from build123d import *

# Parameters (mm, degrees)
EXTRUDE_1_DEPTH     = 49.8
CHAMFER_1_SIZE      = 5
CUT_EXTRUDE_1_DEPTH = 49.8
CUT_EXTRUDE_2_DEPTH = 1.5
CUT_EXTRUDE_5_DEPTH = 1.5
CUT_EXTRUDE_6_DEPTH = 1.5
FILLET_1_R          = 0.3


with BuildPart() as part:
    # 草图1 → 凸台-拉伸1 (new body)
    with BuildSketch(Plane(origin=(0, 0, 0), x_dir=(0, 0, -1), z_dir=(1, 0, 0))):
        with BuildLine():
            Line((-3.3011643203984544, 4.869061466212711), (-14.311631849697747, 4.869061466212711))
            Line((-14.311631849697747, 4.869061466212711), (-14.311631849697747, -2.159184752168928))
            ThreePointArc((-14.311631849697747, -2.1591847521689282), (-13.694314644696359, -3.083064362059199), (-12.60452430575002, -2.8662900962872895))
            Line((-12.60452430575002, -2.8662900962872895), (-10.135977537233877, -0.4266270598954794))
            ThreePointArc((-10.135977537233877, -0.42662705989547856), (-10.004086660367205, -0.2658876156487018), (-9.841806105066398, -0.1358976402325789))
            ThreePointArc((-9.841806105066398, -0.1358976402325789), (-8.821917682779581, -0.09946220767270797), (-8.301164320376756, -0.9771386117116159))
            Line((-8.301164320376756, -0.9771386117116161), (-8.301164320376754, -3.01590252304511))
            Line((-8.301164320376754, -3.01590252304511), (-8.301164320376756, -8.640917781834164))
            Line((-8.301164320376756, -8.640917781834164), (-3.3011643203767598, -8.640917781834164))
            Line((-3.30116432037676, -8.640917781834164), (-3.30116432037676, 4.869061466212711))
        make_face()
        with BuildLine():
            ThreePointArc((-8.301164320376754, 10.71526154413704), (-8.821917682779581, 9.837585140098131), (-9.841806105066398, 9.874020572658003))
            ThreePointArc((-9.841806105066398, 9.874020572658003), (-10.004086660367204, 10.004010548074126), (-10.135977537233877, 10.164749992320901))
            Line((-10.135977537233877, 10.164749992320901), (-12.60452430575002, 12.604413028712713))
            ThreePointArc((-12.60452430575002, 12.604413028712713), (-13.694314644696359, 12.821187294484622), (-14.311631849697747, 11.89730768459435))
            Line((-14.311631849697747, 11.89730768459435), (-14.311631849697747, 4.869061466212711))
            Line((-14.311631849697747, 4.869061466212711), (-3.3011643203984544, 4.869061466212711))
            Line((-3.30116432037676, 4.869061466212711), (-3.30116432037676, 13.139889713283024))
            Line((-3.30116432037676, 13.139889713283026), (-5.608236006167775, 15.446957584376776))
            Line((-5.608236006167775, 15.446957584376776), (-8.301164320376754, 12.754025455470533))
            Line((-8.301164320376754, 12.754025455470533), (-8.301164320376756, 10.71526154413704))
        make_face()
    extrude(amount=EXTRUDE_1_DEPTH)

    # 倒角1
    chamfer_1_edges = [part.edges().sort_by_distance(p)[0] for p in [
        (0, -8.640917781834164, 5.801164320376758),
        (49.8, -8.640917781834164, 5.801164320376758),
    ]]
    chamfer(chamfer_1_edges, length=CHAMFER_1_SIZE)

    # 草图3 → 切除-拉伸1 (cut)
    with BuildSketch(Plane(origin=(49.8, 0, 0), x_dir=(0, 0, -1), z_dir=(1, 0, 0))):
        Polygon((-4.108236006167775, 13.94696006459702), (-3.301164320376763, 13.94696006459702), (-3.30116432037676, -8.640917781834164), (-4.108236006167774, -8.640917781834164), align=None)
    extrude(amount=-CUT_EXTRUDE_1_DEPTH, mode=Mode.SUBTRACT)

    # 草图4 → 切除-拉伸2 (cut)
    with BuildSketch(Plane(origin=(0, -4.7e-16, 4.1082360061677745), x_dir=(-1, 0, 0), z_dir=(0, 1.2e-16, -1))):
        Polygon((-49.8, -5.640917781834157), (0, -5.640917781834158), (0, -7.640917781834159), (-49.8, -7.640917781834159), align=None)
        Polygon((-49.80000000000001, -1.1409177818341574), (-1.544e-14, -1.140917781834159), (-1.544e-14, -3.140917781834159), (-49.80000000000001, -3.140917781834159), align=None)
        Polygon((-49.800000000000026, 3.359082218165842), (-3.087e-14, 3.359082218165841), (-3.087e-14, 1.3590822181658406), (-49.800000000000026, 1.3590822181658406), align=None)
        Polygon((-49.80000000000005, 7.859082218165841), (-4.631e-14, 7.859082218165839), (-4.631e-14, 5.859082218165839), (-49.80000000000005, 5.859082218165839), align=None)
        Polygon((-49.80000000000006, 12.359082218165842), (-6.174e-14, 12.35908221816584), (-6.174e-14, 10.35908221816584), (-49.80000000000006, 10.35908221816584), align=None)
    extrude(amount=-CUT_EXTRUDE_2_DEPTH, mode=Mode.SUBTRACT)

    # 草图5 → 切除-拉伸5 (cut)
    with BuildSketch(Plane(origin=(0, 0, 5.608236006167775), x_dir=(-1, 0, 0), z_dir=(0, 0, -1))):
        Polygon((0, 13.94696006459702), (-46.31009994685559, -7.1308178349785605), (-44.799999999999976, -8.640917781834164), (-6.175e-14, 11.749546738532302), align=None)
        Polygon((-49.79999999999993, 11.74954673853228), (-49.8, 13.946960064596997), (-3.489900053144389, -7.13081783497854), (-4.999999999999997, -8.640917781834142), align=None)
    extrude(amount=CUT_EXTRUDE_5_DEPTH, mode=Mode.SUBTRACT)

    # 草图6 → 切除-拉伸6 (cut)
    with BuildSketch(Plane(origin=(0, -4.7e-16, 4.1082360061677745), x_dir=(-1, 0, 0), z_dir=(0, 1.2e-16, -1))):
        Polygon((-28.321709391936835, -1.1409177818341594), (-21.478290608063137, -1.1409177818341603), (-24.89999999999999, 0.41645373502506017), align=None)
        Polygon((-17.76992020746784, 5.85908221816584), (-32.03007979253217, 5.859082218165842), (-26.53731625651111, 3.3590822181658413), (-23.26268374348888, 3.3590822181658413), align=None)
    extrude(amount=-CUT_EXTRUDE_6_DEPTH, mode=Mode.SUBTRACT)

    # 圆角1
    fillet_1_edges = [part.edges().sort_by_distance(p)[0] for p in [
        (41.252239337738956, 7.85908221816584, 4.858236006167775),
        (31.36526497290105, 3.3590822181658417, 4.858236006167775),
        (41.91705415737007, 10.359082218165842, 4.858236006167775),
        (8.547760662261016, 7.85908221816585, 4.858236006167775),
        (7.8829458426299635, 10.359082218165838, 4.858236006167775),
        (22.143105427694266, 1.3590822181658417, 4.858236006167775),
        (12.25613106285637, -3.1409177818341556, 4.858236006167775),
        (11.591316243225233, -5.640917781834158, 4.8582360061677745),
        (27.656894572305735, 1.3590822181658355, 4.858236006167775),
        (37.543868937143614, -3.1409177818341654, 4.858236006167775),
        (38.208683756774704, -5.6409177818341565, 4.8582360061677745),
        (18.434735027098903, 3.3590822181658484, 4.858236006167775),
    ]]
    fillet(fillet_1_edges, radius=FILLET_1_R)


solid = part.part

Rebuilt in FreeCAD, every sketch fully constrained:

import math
import FreeCAD as App
import Part
import Sketcher

V = App.Vector
Q = App.Units.Quantity


def edges_at(feature, points):
    """Names of the edges that pass closest to the given points."""
    edges = feature.Shape.Edges
    near = lambda p: min(range(len(edges)), key=lambda i: edges[i].distToShape(Part.Vertex(*p))[0])
    return sorted({f"Edge{near(p) + 1}" for p in points})

doc = App.newDocument("Part")
body = doc.addObject("PartDesign::Body", "Body")

sketch1 = body.newObject("Sketcher::SketchObject", "Sketch")
sketch1.AttachmentSupport = (doc.getObject("YZ_Plane"), [""])
sketch1.MapMode = "FlatFace"
sketch1.addGeometry(Part.ArcOfCircle(Part.Circle(V(-2.159185, 13.311632, 0), V(0, 0, 1), 1), math.radians(90), math.radians(225.0001)), False)
sketch1.addGeometry(Part.LineSegment(V(-2.86629, 12.604524, 0), V(-0.426627, 10.135978, 0)), False)
sketch1.addGeometry(Part.ArcOfCircle(Part.Circle(V(-0.977139, 9.301158, 0), V(0, 0, 1), 0.999993), math.radians(-90), math.radians(56.597639)), False)
sketch1.addGeometry(Part.LineSegment(V(-0.977139, 8.301164, 0), V(-8.640918, 8.301164, 0)), False)
sketch1.addGeometry(Part.LineSegment(V(-8.640918, 8.301164, 0), V(-8.640918, 3.301164, 0)), False)
sketch1.addGeometry(Part.LineSegment(V(-8.640918, 3.301164, 0), V(13.13989, 3.301164, 0)), False)
sketch1.addGeometry(Part.LineSegment(V(13.13989, 3.301164, 0), V(15.446958, 5.608236, 0)), False)
sketch1.addGeometry(Part.LineSegment(V(15.446958, 5.608236, 0), V(12.754025, 8.301164, 0)), False)
sketch1.addGeometry(Part.LineSegment(V(12.754025, 8.301164, 0), V(10.715262, 8.301164, 0)), False)
sketch1.addGeometry(Part.ArcOfCircle(Part.Circle(V(10.715262, 9.301158, 0), V(0, 0, 1), 0.999993), math.radians(123.402361), math.radians(270)), False)
sketch1.addGeometry(Part.LineSegment(V(10.16475, 10.135978, 0), V(12.604413, 12.604524, 0)), False)
sketch1.addGeometry(Part.ArcOfCircle(Part.Circle(V(11.897308, 13.311632, 0), V(0, 0, 1), 1), math.radians(-45.0001), math.radians(90)), False)
sketch1.addGeometry(Part.LineSegment(V(11.897308, 14.311632, 0), V(-2.159185, 14.311632, 0)), False)
sketch1.addConstraint(Sketcher.Constraint("Coincident", 0, 2, 1, 1))
sketch1.addConstraint(Sketcher.Constraint("Coincident", 1, 2, 2, 2))
sketch1.addConstraint(Sketcher.Constraint("Tangent", 2, 1, 3, 1))
sketch1.addConstraint(Sketcher.Constraint("Coincident", 3, 2, 4, 1))
sketch1.addConstraint(Sketcher.Constraint("Coincident", 4, 2, 5, 1))
sketch1.addConstraint(Sketcher.Constraint("Coincident", 5, 2, 6, 1))
sketch1.addConstraint(Sketcher.Constraint("Coincident", 6, 2, 7, 1))
sketch1.addConstraint(Sketcher.Constraint("Coincident", 7, 2, 8, 1))
sketch1.addConstraint(Sketcher.Constraint("Tangent", 8, 2, 9, 2))
sketch1.addConstraint(Sketcher.Constraint("Coincident", 9, 1, 10, 1))
sketch1.addConstraint(Sketcher.Constraint("Coincident", 10, 2, 11, 1))
sketch1.addConstraint(Sketcher.Constraint("Tangent", 11, 2, 12, 1))
sketch1.addConstraint(Sketcher.Constraint("Tangent", 12, 2, 0, 1))
sketch1.addConstraint(Sketcher.Constraint("Horizontal", 3))
sketch1.addConstraint(Sketcher.Constraint("Vertical", 4))
sketch1.addConstraint(Sketcher.Constraint("Horizontal", 5))
sketch1.addConstraint(Sketcher.Constraint("Horizontal", 8))
sketch1.addConstraint(Sketcher.Constraint("Horizontal", 12))
sketch1.addConstraint(Sketcher.Constraint("Equal", 2, 9))
sketch1.addConstraint(Sketcher.Constraint("Equal", 0, 11))
sketch1.addConstraint(Sketcher.Constraint("Perpendicular", 6, 7))
sketch1.addConstraint(Sketcher.Constraint("Horizontal", 2, 3, 9, 3))
sketch1.addConstraint(Sketcher.Constraint("Horizontal", 1, 2, 9, 1))
sketch1.addConstraint(Sketcher.Constraint("Horizontal", 0, 2, 10, 2))
sketch1.addConstraint(Sketcher.Constraint("Equal", 1, 10))
sketch1.addConstraint(Sketcher.Constraint("Radius", 0, Q("1 mm")))
sketch1.addConstraint(Sketcher.Constraint("DistanceY", 4, 2, 4, 1, Q("5 mm")))
sketch1.addConstraint(Sketcher.Constraint("Radius", 2, Q("0.999993 mm")))
sketch1.addConstraint(Sketcher.Constraint("DistanceX", 3, 2, 3, 1, Q("7.663779 mm")))
sketch1.addConstraint(Sketcher.Constraint("DistanceX", 2, 3, 9, 3, Q("11.6924 mm")))
sketch1.addConstraint(Sketcher.Constraint("Distance", 1, Q("3.470689 mm")))
sketch1.addConstraint(Sketcher.Constraint("Distance", 6, Q("3.262689 mm")))
sketch1.addConstraint(Sketcher.Constraint("Distance", 7, Q("3.808378 mm")))
sketch1.addConstraint(Sketcher.Constraint("DistanceX", 5, 1, 5, 2, Q("21.780807 mm")))
sketch1.addConstraint(Sketcher.Constraint("DistanceX", 12, 2, 12, 1, Q("14.056492 mm")))
sketch1.addConstraint(Sketcher.Constraint("DistanceX", 2, 3, -1, 1, Q("0.977139 mm")))
sketch1.addConstraint(Sketcher.Constraint("DistanceX", 0, 2, -1, 1, Q("2.86629 mm")))
sketch1.addConstraint(Sketcher.Constraint("DistanceX", -1, 1, 9, 1, Q("10.16475 mm")))
sketch1.addConstraint(Sketcher.Constraint("DistanceY", -1, 1, 11, 2, Q("14.311632 mm")))
pad1 = body.newObject("PartDesign::Pad", "Pad")
pad1.Profile = sketch1
pad1.Length = 49.8
doc.recompute()

chamfer = body.newObject("PartDesign::Chamfer", "Chamfer")
chamfer.Base = (pad1, edges_at(pad1, [(0, -8.641, 5.801), (49.8, -8.641, 5.801)]))
chamfer.Size = 5

sketch2 = body.newObject("Sketcher::SketchObject", "Sketch001")
sketch2.AttachmentSupport = (doc.getObject("YZ_Plane"), [""])
sketch2.MapMode = "FlatFace"
sketch2.AttachmentOffset = App.Placement(V(0, 0, 49.8), App.Rotation())
sketch2.addGeometry(Part.LineSegment(V(13.94696, 3.301164, 0), V(13.94696, 4.108236, 0)), False)
sketch2.addGeometry(Part.LineSegment(V(13.94696, 4.108236, 0), V(-8.640918, 4.108236, 0)), False)
sketch2.addGeometry(Part.LineSegment(V(-8.640918, 4.108236, 0), V(-8.640918, 3.301164, 0)), False)
sketch2.addGeometry(Part.LineSegment(V(-8.640918, 3.301164, 0), V(13.94696, 3.301164, 0)), False)
sketch2.addConstraint(Sketcher.Constraint("Coincident", 0, 2, 1, 1))
sketch2.addConstraint(Sketcher.Constraint("Coincident", 1, 2, 2, 1))
sketch2.addConstraint(Sketcher.Constraint("Coincident", 2, 2, 3, 1))
sketch2.addConstraint(Sketcher.Constraint("Coincident", 3, 2, 0, 1))
sketch2.addConstraint(Sketcher.Constraint("Vertical", 0))
sketch2.addConstraint(Sketcher.Constraint("Horizontal", 1))
sketch2.addConstraint(Sketcher.Constraint("Vertical", 2))
sketch2.addConstraint(Sketcher.Constraint("Horizontal", 3))
sketch2.addConstraint(Sketcher.Constraint("DistanceY", 0, 1, 0, 2, Q("0.807072 mm")))
sketch2.addConstraint(Sketcher.Constraint("DistanceX", 1, 2, 1, 1, Q("22.587878 mm")))
sketch2.addConstraint(Sketcher.Constraint("DistanceX", -1, 1, 0, 2, Q("13.94696 mm")))
sketch2.addConstraint(Sketcher.Constraint("DistanceY", -1, 1, 0, 2, Q("4.108236 mm")))
pocket1 = body.newObject("PartDesign::Pocket", "Pocket")
pocket1.Profile = sketch2
pocket1.Length = 49.8

sketch3 = body.newObject("Sketcher::SketchObject", "Sketch002")
sketch3.AttachmentSupport = (doc.getObject("XY_Plane"), [""])
sketch3.MapMode = "FlatFace"
sketch3.AttachmentOffset = App.Placement(V(0, 0, 4.108236), App.Rotation())
sketch3.addGeometry(Part.LineSegment(V(0, -5.640918, 0), V(49.8, -5.640918, 0)), False)
sketch3.addGeometry(Part.LineSegment(V(49.8, -5.640918, 0), V(49.8, -7.640918, 0)), False)
sketch3.addGeometry(Part.LineSegment(V(49.8, -7.640918, 0), V(0, -7.640918, 0)), False)
sketch3.addGeometry(Part.LineSegment(V(0, -7.640918, 0), V(0, -5.640918, 0)), False)
sketch3.addGeometry(Part.LineSegment(V(0, -1.140918, 0), V(49.8, -1.140918, 0)), False)
sketch3.addGeometry(Part.LineSegment(V(49.8, -1.140918, 0), V(49.8, -3.140918, 0)), False)
sketch3.addGeometry(Part.LineSegment(V(49.8, -3.140918, 0), V(0, -3.140918, 0)), False)
sketch3.addGeometry(Part.LineSegment(V(0, -3.140918, 0), V(0, -1.140918, 0)), False)
sketch3.addGeometry(Part.LineSegment(V(0, 3.359082, 0), V(49.8, 3.359082, 0)), False)
sketch3.addGeometry(Part.LineSegment(V(49.8, 3.359082, 0), V(49.8, 1.359082, 0)), False)
sketch3.addGeometry(Part.LineSegment(V(49.8, 1.359082, 0), V(0, 1.359082, 0)), False)
sketch3.addGeometry(Part.LineSegment(V(0, 1.359082, 0), V(0, 3.359082, 0)), False)
sketch3.addGeometry(Part.LineSegment(V(0, 7.859082, 0), V(49.8, 7.859082, 0)), False)
sketch3.addGeometry(Part.LineSegment(V(49.8, 7.859082, 0), V(49.8, 5.859082, 0)), False)
sketch3.addGeometry(Part.LineSegment(V(49.8, 5.859082, 0), V(0, 5.859082, 0)), False)
sketch3.addGeometry(Part.LineSegment(V(0, 5.859082, 0), V(0, 7.859082, 0)), False)
sketch3.addGeometry(Part.LineSegment(V(0, 12.359082, 0), V(49.8, 12.359082, 0)), False)
sketch3.addGeometry(Part.LineSegment(V(49.8, 12.359082, 0), V(49.8, 10.359082, 0)), False)
sketch3.addGeometry(Part.LineSegment(V(49.8, 10.359082, 0), V(0, 10.359082, 0)), False)
sketch3.addGeometry(Part.LineSegment(V(0, 10.359082, 0), V(0, 12.359082, 0)), False)
sketch3.addConstraint(Sketcher.Constraint("Coincident", 0, 2, 1, 1))
sketch3.addConstraint(Sketcher.Constraint("Coincident", 1, 2, 2, 1))
sketch3.addConstraint(Sketcher.Constraint("Coincident", 2, 2, 3, 1))
sketch3.addConstraint(Sketcher.Constraint("Coincident", 3, 2, 0, 1))
sketch3.addConstraint(Sketcher.Constraint("Coincident", 4, 2, 5, 1))
sketch3.addConstraint(Sketcher.Constraint("Coincident", 5, 2, 6, 1))
sketch3.addConstraint(Sketcher.Constraint("Coincident", 6, 2, 7, 1))
sketch3.addConstraint(Sketcher.Constraint("Coincident", 7, 2, 4, 1))
sketch3.addConstraint(Sketcher.Constraint("Coincident", 8, 2, 9, 1))
sketch3.addConstraint(Sketcher.Constraint("Coincident", 9, 2, 10, 1))
sketch3.addConstraint(Sketcher.Constraint("Coincident", 10, 2, 11, 1))
sketch3.addConstraint(Sketcher.Constraint("Coincident", 11, 2, 8, 1))
sketch3.addConstraint(Sketcher.Constraint("Coincident", 12, 2, 13, 1))
sketch3.addConstraint(Sketcher.Constraint("Coincident", 13, 2, 14, 1))
sketch3.addConstraint(Sketcher.Constraint("Coincident", 14, 2, 15, 1))
sketch3.addConstraint(Sketcher.Constraint("Coincident", 15, 2, 12, 1))
sketch3.addConstraint(Sketcher.Constraint("Coincident", 16, 2, 17, 1))
sketch3.addConstraint(Sketcher.Constraint("Coincident", 17, 2, 18, 1))
sketch3.addConstraint(Sketcher.Constraint("Coincident", 18, 2, 19, 1))
sketch3.addConstraint(Sketcher.Constraint("Coincident", 19, 2, 16, 1))
sketch3.addConstraint(Sketcher.Constraint("Horizontal", 0))
sketch3.addConstraint(Sketcher.Constraint("Vertical", 1))
sketch3.addConstraint(Sketcher.Constraint("Horizontal", 2))
sketch3.addConstraint(Sketcher.Constraint("Vertical", 3))
sketch3.addConstraint(Sketcher.Constraint("Horizontal", 4))
sketch3.addConstraint(Sketcher.Constraint("Vertical", 5))
sketch3.addConstraint(Sketcher.Constraint("Horizontal", 6))
sketch3.addConstraint(Sketcher.Constraint("Vertical", 7))
sketch3.addConstraint(Sketcher.Constraint("Horizontal", 8))
sketch3.addConstraint(Sketcher.Constraint("Vertical", 9))
sketch3.addConstraint(Sketcher.Constraint("Horizontal", 10))
sketch3.addConstraint(Sketcher.Constraint("Vertical", 11))
sketch3.addConstraint(Sketcher.Constraint("Horizontal", 12))
sketch3.addConstraint(Sketcher.Constraint("Vertical", 13))
sketch3.addConstraint(Sketcher.Constraint("Horizontal", 14))
sketch3.addConstraint(Sketcher.Constraint("Vertical", 15))
sketch3.addConstraint(Sketcher.Constraint("Horizontal", 16))
sketch3.addConstraint(Sketcher.Constraint("Vertical", 17))
sketch3.addConstraint(Sketcher.Constraint("Horizontal", 18))
sketch3.addConstraint(Sketcher.Constraint("Vertical", 19))
sketch3.addConstraint(Sketcher.Constraint("PointOnObject", 2, 2, -2))
sketch3.addConstraint(Sketcher.Constraint("PointOnObject", 6, 2, -2))
sketch3.addConstraint(Sketcher.Constraint("PointOnObject", 10, 2, -2))
sketch3.addConstraint(Sketcher.Constraint("PointOnObject", 14, 2, -2))
sketch3.addConstraint(Sketcher.Constraint("PointOnObject", 18, 2, -2))
sketch3.addConstraint(Sketcher.Constraint("Vertical", 1, 2, 4, 2))
sketch3.addConstraint(Sketcher.Constraint("Vertical", 5, 2, 8, 2))
sketch3.addConstraint(Sketcher.Constraint("Vertical", 9, 2, 12, 2))
sketch3.addConstraint(Sketcher.Constraint("Vertical", 13, 2, 16, 2))
sketch3.addConstraint(Sketcher.Constraint("Equal", 3, 5))
sketch3.addConstraint(Sketcher.Constraint("Equal", 7, 9))
sketch3.addConstraint(Sketcher.Constraint("Equal", 11, 13))
sketch3.addConstraint(Sketcher.Constraint("Equal", 15, 17))
sketch3.addConstraint(Sketcher.Constraint("DistanceY", 1, 2, 1, 1, Q("2 mm")))
sketch3.addConstraint(Sketcher.Constraint("DistanceX", 0, 1, 0, 2, Q("49.8 mm")))
sketch3.addConstraint(Sketcher.Constraint("DistanceY", 0, 2, 8, 2, Q("9 mm")))
sketch3.addConstraint(Sketcher.Constraint("DistanceY", 4, 2, 12, 2, Q("9 mm")))
sketch3.addConstraint(Sketcher.Constraint("DistanceY", 8, 2, 16, 2, Q("9 mm")))
sketch3.addConstraint(Sketcher.Constraint("DistanceY", 0, 2, 4, 2, Q("4.5 mm")))
sketch3.addConstraint(Sketcher.Constraint("DistanceY", 0, 2, -1, 1, Q("5.640918 mm")))
pocket2 = body.newObject("PartDesign::Pocket", "Pocket001")
pocket2.Profile = sketch3
pocket2.Length = 1.5
pocket2.Reversed = True

sketch4 = body.newObject("Sketcher::SketchObject", "Sketch003")
sketch4.AttachmentSupport = (doc.getObject("XY_Plane"), [""])
sketch4.MapMode = "FlatFace"
sketch4.AttachmentOffset = App.Placement(V(0, 0, 5.608236), App.Rotation())
sketch4.addGeometry(Part.LineSegment(V(0, 11.749547, 0), V(0, 13.94696, 0)), False)
sketch4.addGeometry(Part.LineSegment(V(0, 13.94696, 0), V(24.9, 2.613867, 0)), False)
sketch4.addGeometry(Part.LineSegment(V(24.9, 2.613867, 0), V(49.8, 13.94696, 0)), False)
sketch4.addGeometry(Part.LineSegment(V(49.8, 13.94696, 0), V(49.8, 11.749547, 0)), False)
sketch4.addGeometry(Part.LineSegment(V(49.8, 11.749547, 0), V(27.313974, 1.51516, 0)), False)
sketch4.addGeometry(Part.LineSegment(V(27.313974, 1.51516, 0), V(46.3101, -7.130818, 0)), False)
sketch4.addGeometry(Part.LineSegment(V(46.3101, -7.130818, 0), V(44.8, -8.640918, 0)), False)
sketch4.addGeometry(Part.LineSegment(V(44.8, -8.640918, 0), V(24.9, 0.416454, 0)), False)
sketch4.addGeometry(Part.LineSegment(V(24.9, 0.416454, 0), V(5, -8.640918, 0)), False)
sketch4.addGeometry(Part.LineSegment(V(5, -8.640918, 0), V(3.4899, -7.130818, 0)), False)
sketch4.addGeometry(Part.LineSegment(V(3.4899, -7.130818, 0), V(22.486026, 1.51516, 0)), False)
sketch4.addGeometry(Part.LineSegment(V(22.486026, 1.51516, 0), V(0, 11.749547, 0)), False)
sketch4.addConstraint(Sketcher.Constraint("Coincident", 0, 2, 1, 1))
sketch4.addConstraint(Sketcher.Constraint("Coincident", 1, 2, 2, 1))
sketch4.addConstraint(Sketcher.Constraint("Coincident", 2, 2, 3, 1))
sketch4.addConstraint(Sketcher.Constraint("Coincident", 3, 2, 4, 1))
sketch4.addConstraint(Sketcher.Constraint("Coincident", 4, 2, 5, 1))
sketch4.addConstraint(Sketcher.Constraint("Coincident", 5, 2, 6, 1))
sketch4.addConstraint(Sketcher.Constraint("Coincident", 6, 2, 7, 1))
sketch4.addConstraint(Sketcher.Constraint("Coincident", 7, 2, 8, 1))
sketch4.addConstraint(Sketcher.Constraint("Coincident", 8, 2, 9, 1))
sketch4.addConstraint(Sketcher.Constraint("Coincident", 9, 2, 10, 1))
sketch4.addConstraint(Sketcher.Constraint("Coincident", 10, 2, 11, 1))
sketch4.addConstraint(Sketcher.Constraint("Coincident", 11, 2, 0, 1))
sketch4.addConstraint(Sketcher.Constraint("Vertical", 0))
sketch4.addConstraint(Sketcher.Constraint("Vertical", 3))
sketch4.addConstraint(Sketcher.Constraint("PointOnObject", 0, 2, -2))
sketch4.addConstraint(Sketcher.Constraint("Parallel", 2, 4))
sketch4.addConstraint(Sketcher.Constraint("Parallel", 1, 5))
sketch4.addConstraint(Sketcher.Constraint("Parallel", 5, 7))
sketch4.addConstraint(Sketcher.Constraint("Parallel", 4, 8))
sketch4.addConstraint(Sketcher.Constraint("Perpendicular", 6, 9))
sketch4.addConstraint(Sketcher.Constraint("Parallel", 8, 10))
sketch4.addConstraint(Sketcher.Constraint("Parallel", 7, 11))
sketch4.addConstraint(Sketcher.Constraint("Horizontal", 0, 2, 2, 2))
sketch4.addConstraint(Sketcher.Constraint("Horizontal", 6, 2, 8, 2))
sketch4.addConstraint(Sketcher.Constraint("Horizontal", 5, 2, 9, 2))
sketch4.addConstraint(Sketcher.Constraint("Horizontal", 4, 2, 10, 2))
sketch4.addConstraint(Sketcher.Constraint("Horizontal", 3, 2, 11, 2))
sketch4.addConstraint(Sketcher.Constraint("Vertical", 1, 2, 7, 2))
sketch4.addConstraint(Sketcher.Constraint("Equal", 1, 2))
sketch4.addConstraint(Sketcher.Constraint("DistanceX", -1, 1, 8, 2, Q("5 mm")))
sketch4.addConstraint(Sketcher.Constraint("DistanceX", -1, 1, 1, 2, Q("24.9 mm")))
sketch4.addConstraint(Sketcher.Constraint("DistanceX", -1, 1, 5, 2, Q("46.3101 mm")))
sketch4.addConstraint(Sketcher.Constraint("DistanceY", 4, 2, 2, 2, Q("12.4318 mm")))
sketch4.addConstraint(Sketcher.Constraint("Distance", 5, Q("20.87117 mm")))
sketch4.addConstraint(Sketcher.Constraint("DistanceY", 0, 1, 0, 2, Q("2.197413 mm")))
sketch4.addConstraint(Sketcher.Constraint("DistanceY", -1, 1, 0, 2, Q("13.94696 mm")))
pocket3 = body.newObject("PartDesign::Pocket", "Pocket002")
pocket3.Profile = sketch4
pocket3.Length = 1.5

sketch5 = body.newObject("Sketcher::SketchObject", "Sketch004")
sketch5.AttachmentSupport = (doc.getObject("XY_Plane"), [""])
sketch5.MapMode = "FlatFace"
sketch5.AttachmentOffset = App.Placement(V(0, 0, 4.108236), App.Rotation())
sketch5.addGeometry(Part.LineSegment(V(28.321709, -1.140918, 0), V(21.478291, -1.140918, 0)), False)
sketch5.addGeometry(Part.LineSegment(V(21.478291, -1.140918, 0), V(24.9, 0.416454, 0)), False)
sketch5.addGeometry(Part.LineSegment(V(24.9, 0.416454, 0), V(28.321709, -1.140918, 0)), False)
sketch5.addGeometry(Part.LineSegment(V(17.76992, 5.859082, 0), V(32.03008, 5.859082, 0)), False)
sketch5.addGeometry(Part.LineSegment(V(32.03008, 5.859082, 0), V(26.537316, 3.359082, 0)), False)
sketch5.addGeometry(Part.LineSegment(V(26.537316, 3.359082, 0), V(23.262684, 3.359082, 0)), False)
sketch5.addGeometry(Part.LineSegment(V(23.262684, 3.359082, 0), V(17.76992, 5.859082, 0)), False)
sketch5.addConstraint(Sketcher.Constraint("Coincident", 0, 2, 1, 1))
sketch5.addConstraint(Sketcher.Constraint("Coincident", 1, 2, 2, 1))
sketch5.addConstraint(Sketcher.Constraint("Coincident", 2, 2, 0, 1))
sketch5.addConstraint(Sketcher.Constraint("Coincident", 3, 2, 4, 1))
sketch5.addConstraint(Sketcher.Constraint("Coincident", 4, 2, 5, 1))
sketch5.addConstraint(Sketcher.Constraint("Coincident", 5, 2, 6, 1))
sketch5.addConstraint(Sketcher.Constraint("Coincident", 6, 2, 3, 1))
sketch5.addConstraint(Sketcher.Constraint("Horizontal", 0))
sketch5.addConstraint(Sketcher.Constraint("Horizontal", 3))
sketch5.addConstraint(Sketcher.Constraint("Horizontal", 5))
sketch5.addConstraint(Sketcher.Constraint("Parallel", 1, 4))
sketch5.addConstraint(Sketcher.Constraint("Parallel", 2, 6))
sketch5.addConstraint(Sketcher.Constraint("Equal", 1, 2))
sketch5.addConstraint(Sketcher.Constraint("DistanceY", 2, 2, 3, 2, Q("7 mm")))
sketch5.addConstraint(Sketcher.Constraint("DistanceX", -1, 1, 1, 2, Q("24.9 mm")))
sketch5.addConstraint(Sketcher.Constraint("DistanceY", 2, 2, 4, 2, Q("4.5 mm")))
sketch5.addConstraint(Sketcher.Constraint("DistanceX", 0, 2, 0, 1, Q("6.843419 mm")))
sketch5.addConstraint(Sketcher.Constraint("DistanceX", 3, 1, 3, 2, Q("14.26016 mm")))
sketch5.addConstraint(Sketcher.Constraint("DistanceX", 5, 2, 5, 1, Q("3.274633 mm")))
sketch5.addConstraint(Sketcher.Constraint("DistanceX", -1, 1, 3, 2, Q("32.03008 mm")))
sketch5.addConstraint(Sketcher.Constraint("DistanceY", 0, 2, -1, 1, Q("1.140918 mm")))
pocket4 = body.newObject("PartDesign::Pocket", "Pocket003")
pocket4.Profile = sketch5
pocket4.Length = 1.5
pocket4.Reversed = True
doc.recompute()

fillet = body.newObject("PartDesign::Fillet", "Fillet")
fillet.Base = (pocket4, edges_at(pocket4, [
    (41.252, 7.859, 4.858),
    (31.365, 3.359, 4.858),
    (41.917, 10.359, 4.858),
    (8.548, 7.859, 4.858),
    (7.883, 10.359, 4.858),
    (22.143, 1.359, 4.858),
    (12.256, -3.141, 4.858),
    (11.591, -5.641, 4.858),
    (27.657, 1.359, 4.858),
    (37.544, -3.141, 4.858),
    (38.209, -5.641, 4.858),
    (18.435, 3.359, 4.858),
]))
fillet.Radius = 0.3

doc.recompute()
